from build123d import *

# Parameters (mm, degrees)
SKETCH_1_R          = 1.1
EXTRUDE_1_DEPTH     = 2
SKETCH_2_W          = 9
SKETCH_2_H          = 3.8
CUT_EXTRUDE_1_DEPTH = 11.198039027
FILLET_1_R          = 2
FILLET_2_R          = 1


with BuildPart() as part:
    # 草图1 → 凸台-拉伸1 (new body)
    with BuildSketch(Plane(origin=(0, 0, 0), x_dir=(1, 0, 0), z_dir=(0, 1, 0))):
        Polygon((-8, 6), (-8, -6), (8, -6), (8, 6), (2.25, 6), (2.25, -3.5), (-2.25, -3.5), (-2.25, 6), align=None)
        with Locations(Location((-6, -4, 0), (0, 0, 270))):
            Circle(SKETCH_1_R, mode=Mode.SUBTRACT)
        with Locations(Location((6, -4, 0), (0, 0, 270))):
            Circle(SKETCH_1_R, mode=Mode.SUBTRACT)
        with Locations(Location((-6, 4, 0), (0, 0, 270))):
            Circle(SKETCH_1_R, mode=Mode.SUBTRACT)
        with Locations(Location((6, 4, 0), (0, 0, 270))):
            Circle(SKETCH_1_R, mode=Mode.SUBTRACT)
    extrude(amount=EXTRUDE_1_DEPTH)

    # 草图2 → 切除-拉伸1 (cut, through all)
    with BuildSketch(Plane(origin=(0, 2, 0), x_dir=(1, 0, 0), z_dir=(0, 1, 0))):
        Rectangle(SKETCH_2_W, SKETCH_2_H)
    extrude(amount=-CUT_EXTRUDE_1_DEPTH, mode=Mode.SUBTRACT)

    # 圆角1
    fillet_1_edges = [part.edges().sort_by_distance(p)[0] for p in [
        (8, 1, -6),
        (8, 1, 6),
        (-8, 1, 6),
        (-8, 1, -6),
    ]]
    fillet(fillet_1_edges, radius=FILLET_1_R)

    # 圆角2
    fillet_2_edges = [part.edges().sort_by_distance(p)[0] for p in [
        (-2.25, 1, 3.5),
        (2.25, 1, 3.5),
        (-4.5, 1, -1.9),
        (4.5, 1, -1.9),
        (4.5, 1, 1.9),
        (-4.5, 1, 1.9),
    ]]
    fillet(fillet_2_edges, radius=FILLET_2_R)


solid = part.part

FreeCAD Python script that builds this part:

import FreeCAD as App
import Part
import Sketcher
from FreeCAD import Vector


def edges_at(feature, points):
    """Names of the edges that pass closest to the given points."""
    edges = feature.Shape.Edges
    near = lambda p: min(range(len(edges)), key=lambda i: edges[i].distToShape(Part.Vertex(*p))[0])
    return sorted({f"Edge{near(p) + 1}" for p in points})

doc = App.newDocument("Part")
params = doc.addObject("Spreadsheet::Sheet", "Params")
for row, (alias, value) in enumerate([
    ("sketch1_diameter", "2.2 mm"),
    ("sketch1_width", "16 mm"),
    ("sketch1_height", "12 mm"),
    ("sketch1_width2", "4.5 mm"),
    ("sketch1_height2", "9.5 mm"),
    ("pad1_length", "2 mm"),
    ("sketch2_width", "9 mm"),
    ("sketch2_height", "3.8 mm"),
    ("fillet_radius", "2 mm"),
    ("fillet2_radius", "1 mm"),
], start=1):
    params.set(f"A{row}", alias)
    params.set(f"B{row}", "=" + value)
    params.setAlias(f"B{row}", alias)

body = doc.addObject("PartDesign::Body", "Body")

# Sketch on XZ plane
sketch1 = body.newObject("Sketcher::SketchObject", "Sketch")
sketch1.AttachmentSupport = (doc.getObject("XZ_Plane"), [""])
sketch1.MapMode = "FlatFace"
sketch1.addGeometry([
    Part.LineSegment(Vector(-8, -6, 0), Vector(-8, 6, 0)),  # 0
    Part.LineSegment(Vector(-8, 6, 0), Vector(8, 6, 0)),  # 1
    Part.LineSegment(Vector(8, 6, 0), Vector(8, -6, 0)),  # 2
    Part.LineSegment(Vector(8, -6, 0), Vector(2.2, -6, 0)),  # 3
    Part.LineSegment(Vector(2.2, -6, 0), Vector(2.2, 3.5, 0)),  # 4
    Part.LineSegment(Vector(2.2, 3.5, 0), Vector(-2.2, 3.5, 0)),  # 5
    Part.LineSegment(Vector(-2.2, 3.5, 0), Vector(-2.2, -6, 0)),  # 6
    Part.LineSegment(Vector(-2.2, -6, 0), Vector(-8, -6, 0)),  # 7
    Part.Circle(Vector(-6, 4, 0), Vector(0, 0, 1), 1.1),  # 8
    Part.Circle(Vector(6, 4, 0), Vector(0, 0, 1), 1.1),  # 9
    Part.Circle(Vector(-6, -4, 0), Vector(0, 0, 1), 1.1),  # 10
    Part.Circle(Vector(6, -4, 0), Vector(0, 0, 1), 1.1),  # 11
], False)
sketch1.addConstraint([
    Sketcher.Constraint("Coincident", 0, 2, 1, 1),
    Sketcher.Constraint("Coincident", 1, 2, 2, 1),
    Sketcher.Constraint("Coincident", 2, 2, 3, 1),
    Sketcher.Constraint("Coincident", 3, 2, 4, 1),
    Sketcher.Constraint("Coincident", 4, 2, 5, 1),
    Sketcher.Constraint("Coincident", 5, 2, 6, 1),
    Sketcher.Constraint("Coincident", 6, 2, 7, 1),
    Sketcher.Constraint("Coincident", 7, 2, 0, 1),
    Sketcher.Constraint("Vertical", 0),
    Sketcher.Constraint("Horizontal", 1),
    Sketcher.Constraint("Vertical", 2),
    Sketcher.Constraint("Horizontal", 3),
    Sketcher.Constraint("Vertical", 4),
    Sketcher.Constraint("Horizontal", 5),
    Sketcher.Constraint("Vertical", 6),
    Sketcher.Constraint("Horizontal", 7),
    Sketcher.Constraint("Equal", 8, 9),
    Sketcher.Constraint("Equal", 9, 10),
    Sketcher.Constraint("Equal", 10, 11),
    Sketcher.Constraint("Symmetric", 9, 3, 10, 3, -1, 1),
    Sketcher.Constraint("Symmetric", 8, 3, 11, 3, -1, 1),
    Sketcher.Constraint("Symmetric", 0, 2, 2, 2, -1, 1),
    Sketcher.Constraint("Symmetric", 8, 3, 9, 3, -2),
    Sketcher.Constraint("Symmetric", 3, 2, 6, 2, -2),
    Sketcher.Constraint("Diameter", 8, 2.2),
    Sketcher.Constraint("DistanceX", 1, 1, 1, 2, 16.0),
    Sketcher.Constraint("DistanceY", 0, 1, 0, 2, 12.0),
    Sketcher.Constraint("DistanceX", 5, 2, 5, 1, 4.5),
    Sketcher.Constraint("DistanceY", 4, 1, 4, 2, 9.5),
    Sketcher.Constraint("DistanceX", 8, 3, -1, 1, 6.0),
    Sketcher.Constraint("DistanceY", -1, 1, 8, 3, 4.0),
])
sketch1.setExpression("Constraints[24]", "Params.sketch1_diameter")
sketch1.setExpression("Constraints[25]", "Params.sketch1_width")
sketch1.setExpression("Constraints[26]", "Params.sketch1_height")
sketch1.setExpression("Constraints[27]", "Params.sketch1_width2")
sketch1.setExpression("Constraints[28]", "Params.sketch1_height2")
pad1 = body.newObject("PartDesign::Pad", "Pad")
pad1.Profile = sketch1
pad1.setExpression("Length", "Params.pad1_length")
pad1.Reversed = True

# Sketch on XZ plane
sketch2 = body.newObject("Sketcher::SketchObject", "Sketch001")
sketch2.AttachmentSupport = (doc.getObject("XZ_Plane"), [""])
sketch2.MapMode = "FlatFace"
sketch2.AttachmentOffset = App.Placement(Vector(0, 0, -2), App.Rotation())
sketch2.addGeometry([
    Part.LineSegment(Vector(-4.5, -1.9, 0), Vector(-4.5, 1.9, 0)),
    Part.LineSegment(Vector(-4.5, 1.9, 0), Vector(4.5, 1.9, 0)),
    Part.LineSegment(Vector(4.5, 1.9, 0), Vector(4.5, -1.9, 0)),
    Part.LineSegment(Vector(4.5, -1.9, 0), Vector(-4.5, -1.9, 0)),
], False)
sketch2.addConstraint([
    Sketcher.Constraint("Coincident", 0, 2, 1, 1),
    Sketcher.Constraint("Coincident", 1, 2, 2, 1),
    Sketcher.Constraint("Coincident", 2, 2, 3, 1),
    Sketcher.Constraint("Coincident", 3, 2, 0, 1),
    Sketcher.Constraint("Vertical", 0),
    Sketcher.Constraint("Horizontal", 1),
    Sketcher.Constraint("Vertical", 2),
    Sketcher.Constraint("Horizontal", 3),
    Sketcher.Constraint("Symmetric", 0, 2, 2, 2, -1, 1),
    Sketcher.Constraint("DistanceX", 1, 1, 1, 2, 9.0),
    Sketcher.Constraint("DistanceY", 0, 1, 0, 2, 3.8),
])
sketch2.setExpression("Constraints[9]", "Params.sketch2_width")
sketch2.setExpression("Constraints[10]", "Params.sketch2_height")
pocket1 = body.newObject("PartDesign::Pocket", "Pocket")
pocket1.Profile = sketch2
pocket1.Type = "ThroughAll"
pocket1.Reversed = True
doc.recompute()

fillet = body.newObject("PartDesign::Fillet", "Fillet")
fillet.Base = (pocket1, edges_at(pocket1, [
    (8, 1, -6),
    (8, 1, 6),
    (-8, 1, 6),
    (-8, 1, -6),
]))
fillet.setExpression("Radius", "Params.fillet_radius")
doc.recompute()

fillet2 = body.newObject("PartDesign::Fillet", "Fillet001")
fillet2.Base = (fillet, edges_at(fillet, [
    (-2.25, 1, 3.5),
    (2.25, 1, 3.5),
    (-4.5, 1, -1.9),
    (4.5, 1, -1.9),
    (4.5, 1, 1.9),
    (-4.5, 1, 1.9),
]))
fillet2.setExpression("Radius", "Params.fillet2_radius")

doc.recompute()
